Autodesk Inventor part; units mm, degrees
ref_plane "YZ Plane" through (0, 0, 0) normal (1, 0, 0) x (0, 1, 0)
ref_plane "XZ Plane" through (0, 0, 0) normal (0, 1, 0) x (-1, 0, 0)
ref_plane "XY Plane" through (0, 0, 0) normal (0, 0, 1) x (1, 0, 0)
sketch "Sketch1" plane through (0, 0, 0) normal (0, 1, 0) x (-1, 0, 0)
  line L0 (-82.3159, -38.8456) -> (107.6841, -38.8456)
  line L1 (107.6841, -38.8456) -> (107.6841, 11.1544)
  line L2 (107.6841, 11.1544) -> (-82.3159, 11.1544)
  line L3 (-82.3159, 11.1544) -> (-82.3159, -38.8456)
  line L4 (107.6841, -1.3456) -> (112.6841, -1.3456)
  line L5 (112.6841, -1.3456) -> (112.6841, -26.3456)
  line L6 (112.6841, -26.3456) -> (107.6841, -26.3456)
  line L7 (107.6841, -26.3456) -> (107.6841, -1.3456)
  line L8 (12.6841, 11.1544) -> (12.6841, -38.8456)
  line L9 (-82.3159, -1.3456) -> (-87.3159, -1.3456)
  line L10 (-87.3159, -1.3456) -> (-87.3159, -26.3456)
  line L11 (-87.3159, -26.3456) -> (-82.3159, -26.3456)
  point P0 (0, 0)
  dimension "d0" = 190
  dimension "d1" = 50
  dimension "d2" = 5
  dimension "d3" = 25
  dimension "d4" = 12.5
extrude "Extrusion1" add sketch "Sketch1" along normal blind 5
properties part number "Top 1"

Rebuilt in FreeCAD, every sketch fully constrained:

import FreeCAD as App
import Part
import Sketcher
from FreeCAD import Vector
Q = App.Units.Quantity


def add_polygon(sketch, points):
    """Adds a closed chain of lines whose ends are joined by coincident constraints."""
    first, n = sketch.GeometryCount, len(points)
    for a, b in zip(points, points[1:] + points[:1]):
        sketch.addGeometry(Part.LineSegment(App.Vector(*a, 0), App.Vector(*b, 0)), False)
    for i in range(n):
        sketch.addConstraint(Sketcher.Constraint("Coincident", first + i, 2, first + (i + 1) % n, 1))

doc = App.newDocument("Part")
params = doc.addObject("Spreadsheet::Sheet", "Params")
for row, (alias, value) in enumerate([
    ("sketch1_width", "190 mm"),
    ("sketch1_width2", "5 mm"),
    ("sketch1_height", "25 mm"),
    ("sketch1_height2", "12.5 mm"),
    ("pad1_length", "5 mm"),
], start=1):
    params.set(f"A{row}", alias)
    params.set(f"B{row}", "=" + value)
    params.setAlias(f"B{row}", alias)

body = doc.addObject("PartDesign::Body", "Body")

# Sketch on XZ plane
sketch1 = body.newObject("Sketcher::SketchObject", "Sketch")
sketch1.AttachmentSupport = (doc.getObject("XZ_Plane"), [""])
sketch1.MapMode = "FlatFace"
add_polygon(sketch1, [(82, -26), (82, -39), (-108, -39), (-108, -26), (-113, -26), (-113, -1), (-108, -1), (-108, 11), (82, 11), (82, -1), (87, -1), (87, -26)])  # lines 0-11
sketch1.addConstraint([
    Sketcher.Constraint("Vertical", 0),
    Sketcher.Constraint("Horizontal", 1),
    Sketcher.Constraint("Vertical", 2),
    Sketcher.Constraint("Horizontal", 3),
    Sketcher.Constraint("Vertical", 4),
    Sketcher.Constraint("Horizontal", 5),
    Sketcher.Constraint("Vertical", 6),
    Sketcher.Constraint("Horizontal", 7),
    Sketcher.Constraint("Vertical", 8),
    Sketcher.Constraint("Horizontal", 9),
    Sketcher.Constraint("Vertical", 10),
    Sketcher.Constraint("Horizontal", 11),
    Sketcher.Constraint("Horizontal", 5, 2, 8, 2),
    Sketcher.Constraint("Horizontal", 3, 2, 10, 2),
    Sketcher.Constraint("Vertical", 2, 2, 5, 2),
    Sketcher.Constraint("Vertical", 0, 2, 7, 2),
    Sketcher.Constraint("Equal", 5, 9),
    Sketcher.Constraint("Equal", 2, 6),
    Sketcher.Constraint("DistanceX", 1, 2, 1, 1, Q("190 mm")),
    Sketcher.Constraint("DistanceX", 3, 2, 3, 1, Q("5 mm")),
    Sketcher.Constraint("DistanceY", 4, 1, 4, 2, Q("25 mm")),
    Sketcher.Constraint("DistanceY", 0, 2, 0, 1, Q("12.5 mm")),
    Sketcher.Constraint("DistanceX", -1, 1, 0, 2, Q("82.316 mm")),
    Sketcher.Constraint("DistanceY", 0, 2, -1, 1, Q("38.8456 mm")),
])
sketch1.setExpression("Constraints[30]", "Params.sketch1_width")
sketch1.setExpression("Constraints[31]", "Params.sketch1_width2")
sketch1.setExpression("Constraints[32]", "Params.sketch1_height")
sketch1.setExpression("Constraints[33]", "Params.sketch1_height2")
pad1 = body.newObject("PartDesign::Pad", "Pad")
pad1.Profile = sketch1
pad1.setExpression("Length", "Params.pad1_length")
pad1.Reversed = True

doc.recompute()
